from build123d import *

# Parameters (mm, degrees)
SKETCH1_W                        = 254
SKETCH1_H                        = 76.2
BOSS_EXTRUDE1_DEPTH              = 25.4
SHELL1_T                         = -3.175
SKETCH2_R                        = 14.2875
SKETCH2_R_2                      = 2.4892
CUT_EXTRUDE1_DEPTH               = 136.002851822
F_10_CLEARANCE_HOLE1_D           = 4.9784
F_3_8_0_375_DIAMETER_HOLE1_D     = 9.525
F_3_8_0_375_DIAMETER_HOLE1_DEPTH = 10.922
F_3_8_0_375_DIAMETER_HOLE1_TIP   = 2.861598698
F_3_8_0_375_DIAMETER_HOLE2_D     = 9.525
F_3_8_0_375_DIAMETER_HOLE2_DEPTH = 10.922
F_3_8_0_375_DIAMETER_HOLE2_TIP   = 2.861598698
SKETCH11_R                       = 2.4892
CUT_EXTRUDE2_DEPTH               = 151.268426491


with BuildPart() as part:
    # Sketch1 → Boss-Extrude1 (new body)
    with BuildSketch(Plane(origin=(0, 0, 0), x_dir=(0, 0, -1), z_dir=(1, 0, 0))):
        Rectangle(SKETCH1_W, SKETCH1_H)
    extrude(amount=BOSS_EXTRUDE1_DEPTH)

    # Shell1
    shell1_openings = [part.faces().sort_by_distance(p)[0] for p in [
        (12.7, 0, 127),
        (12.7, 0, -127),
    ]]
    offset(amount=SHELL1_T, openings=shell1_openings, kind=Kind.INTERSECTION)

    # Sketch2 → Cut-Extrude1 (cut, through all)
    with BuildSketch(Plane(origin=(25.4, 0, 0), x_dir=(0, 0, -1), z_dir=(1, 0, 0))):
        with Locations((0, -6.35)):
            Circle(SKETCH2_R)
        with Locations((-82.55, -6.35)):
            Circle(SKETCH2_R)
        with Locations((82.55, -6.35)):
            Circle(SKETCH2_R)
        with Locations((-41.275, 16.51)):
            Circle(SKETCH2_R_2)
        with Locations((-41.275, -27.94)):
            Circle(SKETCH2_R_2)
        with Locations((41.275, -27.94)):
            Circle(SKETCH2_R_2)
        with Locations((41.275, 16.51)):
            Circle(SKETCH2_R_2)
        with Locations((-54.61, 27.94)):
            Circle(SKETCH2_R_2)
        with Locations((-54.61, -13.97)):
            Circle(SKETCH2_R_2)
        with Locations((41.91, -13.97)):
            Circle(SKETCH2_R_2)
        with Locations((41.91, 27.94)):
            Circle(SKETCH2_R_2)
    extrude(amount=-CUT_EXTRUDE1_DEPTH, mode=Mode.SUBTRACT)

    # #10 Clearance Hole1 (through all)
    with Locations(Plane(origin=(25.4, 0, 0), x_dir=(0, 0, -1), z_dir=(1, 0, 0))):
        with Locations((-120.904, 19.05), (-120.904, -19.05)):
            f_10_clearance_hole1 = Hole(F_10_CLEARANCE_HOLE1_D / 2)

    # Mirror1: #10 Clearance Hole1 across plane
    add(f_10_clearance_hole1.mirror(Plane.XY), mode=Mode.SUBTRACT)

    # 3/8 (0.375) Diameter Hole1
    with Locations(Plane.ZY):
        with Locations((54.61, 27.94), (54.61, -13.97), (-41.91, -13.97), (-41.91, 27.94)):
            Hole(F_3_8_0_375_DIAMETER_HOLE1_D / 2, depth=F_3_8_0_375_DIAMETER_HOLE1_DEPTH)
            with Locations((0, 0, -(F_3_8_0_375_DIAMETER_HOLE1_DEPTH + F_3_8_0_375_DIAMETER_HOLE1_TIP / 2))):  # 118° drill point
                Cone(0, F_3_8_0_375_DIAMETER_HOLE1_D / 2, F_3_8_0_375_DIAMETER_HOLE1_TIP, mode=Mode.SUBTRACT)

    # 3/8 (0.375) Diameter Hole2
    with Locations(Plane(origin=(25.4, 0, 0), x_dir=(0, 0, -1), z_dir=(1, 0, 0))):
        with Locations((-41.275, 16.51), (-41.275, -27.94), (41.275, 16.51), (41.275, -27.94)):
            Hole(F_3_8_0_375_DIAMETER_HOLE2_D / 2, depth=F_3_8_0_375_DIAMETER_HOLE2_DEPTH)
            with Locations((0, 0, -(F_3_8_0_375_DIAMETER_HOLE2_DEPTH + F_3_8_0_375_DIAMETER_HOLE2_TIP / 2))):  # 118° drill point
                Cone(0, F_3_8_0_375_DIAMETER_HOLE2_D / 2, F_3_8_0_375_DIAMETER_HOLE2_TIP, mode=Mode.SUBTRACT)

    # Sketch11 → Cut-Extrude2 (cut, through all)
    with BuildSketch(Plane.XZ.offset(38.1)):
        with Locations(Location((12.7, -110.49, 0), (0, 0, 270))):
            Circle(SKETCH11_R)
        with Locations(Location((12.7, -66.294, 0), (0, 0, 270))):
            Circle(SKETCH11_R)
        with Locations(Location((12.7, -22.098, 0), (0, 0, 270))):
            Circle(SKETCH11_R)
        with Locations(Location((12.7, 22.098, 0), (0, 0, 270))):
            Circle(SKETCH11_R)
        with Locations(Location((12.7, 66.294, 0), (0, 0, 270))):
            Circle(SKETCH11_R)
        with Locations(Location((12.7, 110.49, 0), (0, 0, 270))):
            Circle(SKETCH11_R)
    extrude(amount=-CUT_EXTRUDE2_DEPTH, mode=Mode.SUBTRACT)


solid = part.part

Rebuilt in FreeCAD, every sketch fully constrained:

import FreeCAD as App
import Part
import Sketcher

V = App.Vector
Q = App.Units.Quantity


def faces_at(feature, points):
    """Names of the faces that lie closest to the given points."""
    faces = feature.Shape.Faces
    near = lambda p: min(range(len(faces)), key=lambda i: faces[i].distToShape(Part.Vertex(*p))[0])
    return sorted({f"Face{near(p) + 1}" for p in points})


def add_polygon(sketch, points):
    """Adds a closed chain of lines whose ends are joined by coincident constraints."""
    first, n = sketch.GeometryCount, len(points)
    for a, b in zip(points, points[1:] + points[:1]):
        sketch.addGeometry(Part.LineSegment(App.Vector(*a, 0), App.Vector(*b, 0)), False)
    for i in range(n):
        sketch.addConstraint(Sketcher.Constraint("Coincident", first + i, 2, first + (i + 1) % n, 1))

doc = App.newDocument("Part")
body = doc.addObject("PartDesign::Body", "Body")

sketch1 = body.newObject("Sketcher::SketchObject", "Sketch")
sketch1.AttachmentSupport = (doc.getObject("YZ_Plane"), [""])
sketch1.MapMode = "FlatFace"
add_polygon(sketch1, [(38, 127), (-38, 127), (-38, -127), (38, -127)])
sketch1.addConstraint(Sketcher.Constraint("Horizontal", 0))
sketch1.addConstraint(Sketcher.Constraint("Vertical", 1))
sketch1.addConstraint(Sketcher.Constraint("Horizontal", 2))
sketch1.addConstraint(Sketcher.Constraint("Vertical", 3))
sketch1.addConstraint(Sketcher.Constraint("Symmetric", 0, 2, 2, 2, -1, 1))
sketch1.addConstraint(Sketcher.Constraint("DistanceX", 0, 2, 0, 1, Q("3 in")))
sketch1.addConstraint(Sketcher.Constraint("DistanceY", 1, 2, 1, 1, Q("10 in")))
pad1 = body.newObject("PartDesign::Pad", "Pad")
pad1.Profile = sketch1
pad1.Length = Q("1 in")
doc.recompute()

thickness = body.newObject("PartDesign::Thickness", "Thickness")
thickness.Base = (pad1, faces_at(pad1, [(12.7, 0, 127), (12.7, 0, -127)]))
thickness.Value = Q("0.125 in")
thickness.Reversed = True
thickness.Join = "Intersection"

sketch2 = body.newObject("Sketcher::SketchObject", "Sketch001")
sketch2.AttachmentSupport = (doc.getObject("YZ_Plane"), [""])
sketch2.MapMode = "FlatFace"
sketch2.AttachmentOffset = App.Placement(V(0, 0, 1 * 25.4), App.Rotation())
sketch2.addGeometry(Part.Circle(V(-6.3, 0, 0), V(0, 0, 1), 14.3), False)
sketch2.addGeometry(Part.Circle(V(-6.3, 82.5, 0), V(0, 0, 1), 14.3), False)
sketch2.addGeometry(Part.Circle(V(-6.3, -82.5, 0), V(0, 0, 1), 14.3), False)
sketch2.addGeometry(Part.Circle(V(16.5, 41.3, 0), V(0, 0, 1), 2.5), False)
sketch2.addGeometry(Part.Circle(V(-27.9, 41.3, 0), V(0, 0, 1), 2.5), False)
sketch2.addGeometry(Part.Circle(V(-27.9, -41.3, 0), V(0, 0, 1), 2.5), False)
sketch2.addGeometry(Part.Circle(V(16.5, -41.3, 0), V(0, 0, 1), 2.5), False)
sketch2.addGeometry(Part.Circle(V(27.9, 54.6, 0), V(0, 0, 1), 2.5), False)
sketch2.addGeometry(Part.Circle(V(-14, 54.6, 0), V(0, 0, 1), 2.5), False)
sketch2.addGeometry(Part.Circle(V(-14, -41.9, 0), V(0, 0, 1), 2.5), False)
sketch2.addGeometry(Part.Circle(V(27.9, -41.9, 0), V(0, 0, 1), 2.5), False)
sketch2.addConstraint(Sketcher.Constraint("Equal", 0, 1))
sketch2.addConstraint(Sketcher.Constraint("Equal", 1, 2))
sketch2.addConstraint(Sketcher.Constraint("Equal", 3, 4))
sketch2.addConstraint(Sketcher.Constraint("Equal", 4, 5))
sketch2.addConstraint(Sketcher.Constraint("Equal", 5, 6))
sketch2.addConstraint(Sketcher.Constraint("Equal", 6, 7))
sketch2.addConstraint(Sketcher.Constraint("Equal", 7, 8))
sketch2.addConstraint(Sketcher.Constraint("Equal", 8, 9))
sketch2.addConstraint(Sketcher.Constraint("Equal", 9, 10))
sketch2.addConstraint(Sketcher.Constraint("Symmetric", 1, 3, 2, 3, -1))
sketch2.addConstraint(Sketcher.Constraint("Symmetric", 4, 3, 5, 3, -1))
sketch2.addConstraint(Sketcher.Constraint("Symmetric", 3, 3, 6, 3, -1))
sketch2.addConstraint(Sketcher.Constraint("PointOnObject", 0, 3, -1))
sketch2.addConstraint(Sketcher.Constraint("Horizontal", 3, 3, 4, 3))
sketch2.addConstraint(Sketcher.Constraint("Horizontal", 7, 3, 8, 3))
sketch2.addConstraint(Sketcher.Constraint("Horizontal", 9, 3, 10, 3))
sketch2.addConstraint(Sketcher.Constraint("Vertical", 0, 3, 1, 3))
sketch2.addConstraint(Sketcher.Constraint("Vertical", 8, 3, 9, 3))
sketch2.addConstraint(Sketcher.Constraint("Vertical", 7, 3, 10, 3))
sketch2.addConstraint(Sketcher.Constraint("Diameter", 0, Q("1.125 in")))
sketch2.addConstraint(Sketcher.Constraint("Diameter", 3, Q("0.196 in")))
sketch2.addConstraint(Sketcher.Constraint("DistanceX", 4, 3, -1, 1, Q("1.1 in")))
sketch2.addConstraint(Sketcher.Constraint("DistanceX", -1, 1, 7, 3, Q("1.1 in")))
sketch2.addConstraint(Sketcher.Constraint("DistanceY", 2, 3, 1, 3, Q("6.5 in")))
sketch2.addConstraint(Sketcher.Constraint("DistanceX", 0, 3, 3, 3, Q("0.9 in")))
sketch2.addConstraint(Sketcher.Constraint("DistanceY", 7, 3, 1, 3, Q("1.1 in")))
sketch2.addConstraint(Sketcher.Constraint("DistanceX", 8, 3, 1, 3, Q("0.3 in")))
sketch2.addConstraint(Sketcher.Constraint("DistanceY", 2, 3, 9, 3, Q("1.6 in")))
sketch2.addConstraint(Sketcher.Constraint("DistanceX", 0, 3, -1, 1, Q("0.25 in")))
sketch2.addConstraint(Sketcher.Constraint("DistanceY", 5, 3, 4, 3, Q("3.25 in")))
pocket1 = body.newObject("PartDesign::Pocket", "Pocket")
pocket1.Profile = sketch2
pocket1.Type = "ThroughAll"

sketch3 = body.newObject("Sketcher::SketchObject", "Sketch002")
sketch3.AttachmentSupport = (doc.getObject("YZ_Plane"), [""])
sketch3.MapMode = "FlatFace"
sketch3.AttachmentOffset = App.Placement(V(0, 0, 1 * 25.4), App.Rotation())
sketch3.addGeometry(Part.Circle(V(19.1, 120.9, 0), V(0, 0, 1), 2.5), False)
sketch3.addGeometry(Part.Circle(V(-19.1, 120.9, 0), V(0, 0, 1), 2.5), False)
sketch3.addConstraint(Sketcher.Constraint("Equal", 0, 1))
sketch3.addConstraint(Sketcher.Constraint("Symmetric", 0, 3, 1, 3, -2))
sketch3.addConstraint(Sketcher.Constraint("Diameter", 0, Q("0.196 in")))
sketch3.addConstraint(Sketcher.Constraint("DistanceX", 1, 3, 0, 3, Q("1.5 in")))
sketch3.addConstraint(Sketcher.Constraint("DistanceY", -1, 1, 0, 3, Q("4.76 in")))
doc.recompute()
hole = body.newObject("PartDesign::Hole", "Hole")
hole.Profile = sketch3
hole.ThreadType = "None"
hole.Diameter = Q("0.196 in")
hole.DepthType = "ThroughAll"
doc.recompute()

mirrored = body.newObject("PartDesign::Mirrored", "Mirrored")
mirrored.Originals = [hole]
mirrored.MirrorPlane = (doc.getObject("XY_Plane"), [""])
body.Tip = mirrored

sketch4 = body.newObject("Sketcher::SketchObject", "Sketch003")
sketch4.AttachmentSupport = (doc.getObject("YZ_Plane"), [""])
sketch4.MapMode = "FlatFace"
sketch4.addGeometry(Part.Circle(V(27.9, 54.6, 0), V(0, 0, 1), 4.8), False)
sketch4.addGeometry(Part.Circle(V(-14, 54.6, 0), V(0, 0, 1), 4.8), False)
sketch4.addGeometry(Part.Circle(V(-14, -41.9, 0), V(0, 0, 1), 4.8), False)
sketch4.addGeometry(Part.Circle(V(27.9, -41.9, 0), V(0, 0, 1), 4.8), False)
sketch4.addConstraint(Sketcher.Constraint("Equal", 0, 1))
sketch4.addConstraint(Sketcher.Constraint("Equal", 1, 2))
sketch4.addConstraint(Sketcher.Constraint("Equal", 2, 3))
sketch4.addConstraint(Sketcher.Constraint("Horizontal", 0, 3, 1, 3))
sketch4.addConstraint(Sketcher.Constraint("Horizontal", 2, 3, 3, 3))
sketch4.addConstraint(Sketcher.Constraint("Vertical", 1, 3, 2, 3))
sketch4.addConstraint(Sketcher.Constraint("Vertical", 0, 3, 3, 3))
sketch4.addConstraint(Sketcher.Constraint("Diameter", 0, Q("0.375 in")))
sketch4.addConstraint(Sketcher.Constraint("DistanceX", -1, 1, 0, 3, Q("1.1 in")))
sketch4.addConstraint(Sketcher.Constraint("DistanceY", 2, 3, 1, 3, Q("3.8 in")))
sketch4.addConstraint(Sketcher.Constraint("DistanceY", -1, 1, 0, 3, Q("2.15 in")))
sketch4.addConstraint(Sketcher.Constraint("DistanceX", 1, 3, -1, 1, Q("0.55 in")))
doc.recompute()
hole2 = body.newObject("PartDesign::Hole", "Hole001")
hole2.Profile = sketch4
hole2.ThreadType = "None"
hole2.Diameter = Q("0.375 in")
hole2.DepthType = "Dimension"
hole2.Depth = Q("0.43 in")
hole2.DrillPoint = "Angled"
hole2.DrillPointAngle = 118
hole2.Reversed = True

sketch5 = body.newObject("Sketcher::SketchObject", "Sketch004")
sketch5.AttachmentSupport = (doc.getObject("YZ_Plane"), [""])
sketch5.MapMode = "FlatFace"
sketch5.AttachmentOffset = App.Placement(V(0, 0, 1 * 25.4), App.Rotation())
sketch5.addGeometry(Part.Circle(V(16.5, 41.3, 0), V(0, 0, 1), 4.8), False)
sketch5.addGeometry(Part.Circle(V(-27.9, 41.3, 0), V(0, 0, 1), 4.8), False)
sketch5.addGeometry(Part.Circle(V(16.5, -41.3, 0), V(0, 0, 1), 4.8), False)
sketch5.addGeometry(Part.Circle(V(-27.9, -41.3, 0), V(0, 0, 1), 4.8), False)
sketch5.addConstraint(Sketcher.Constraint("Equal", 0, 1))
sketch5.addConstraint(Sketcher.Constraint("Equal", 1, 2))
sketch5.addConstraint(Sketcher.Constraint("Equal", 2, 3))
sketch5.addConstraint(Sketcher.Constraint("Symmetric", 0, 3, 2, 3, -1))
sketch5.addConstraint(Sketcher.Constraint("Symmetric", 1, 3, 3, 3, -1))
sketch5.addConstraint(Sketcher.Constraint("Horizontal", 0, 3, 1, 3))
sketch5.addConstraint(Sketcher.Constraint("Diameter", 0, Q("0.375 in")))
sketch5.addConstraint(Sketcher.Constraint("DistanceX", 1, 3, -1, 1, Q("1.1 in")))
sketch5.addConstraint(Sketcher.Constraint("DistanceX", -1, 1, 0, 3, Q("0.65 in")))
sketch5.addConstraint(Sketcher.Constraint("DistanceY", 2, 3, 0, 3, Q("3.25 in")))
doc.recompute()
hole3 = body.newObject("PartDesign::Hole", "Hole002")
hole3.Profile = sketch5
hole3.ThreadType = "None"
hole3.Diameter = Q("0.375 in")
hole3.DepthType = "Dimension"
hole3.Depth = Q("0.43 in")
hole3.DrillPoint = "Angled"
hole3.DrillPointAngle = 118

sketch6 = body.newObject("Sketcher::SketchObject", "Sketch005")
sketch6.AttachmentSupport = (doc.getObject("XZ_Plane"), [""])
sketch6.MapMode = "FlatFace"
sketch6.AttachmentOffset = App.Placement(V(0, 0, 1.5 * 25.4), App.Rotation())
sketch6.addGeometry(Part.Circle(V(12.7, -110.5, 0), V(0, 0, 1), 2.5), False)
sketch6.addGeometry(Part.Circle(V(12.7, -66.3, 0), V(0, 0, 1), 2.5), False)
sketch6.addGeometry(Part.Circle(V(12.7, -22.1, 0), V(0, 0, 1), 2.5), False)
sketch6.addGeometry(Part.Circle(V(12.7, 22.1, 0), V(0, 0, 1), 2.5), False)
sketch6.addGeometry(Part.Circle(V(12.7, 66.3, 0), V(0, 0, 1), 2.5), False)
sketch6.addGeometry(Part.Circle(V(12.7, 110.5, 0), V(0, 0, 1), 2.5), False)
sketch6.addConstraint(Sketcher.Constraint("Equal", 0, 1))
sketch6.addConstraint(Sketcher.Constraint("Equal", 1, 2))
sketch6.addConstraint(Sketcher.Constraint("Equal", 2, 3))
sketch6.addConstraint(Sketcher.Constraint("Equal", 3, 4))
sketch6.addConstraint(Sketcher.Constraint("Equal", 4, 5))
sketch6.addConstraint(Sketcher.Constraint("Symmetric", 2, 3, 3, 3, -1))
sketch6.addConstraint(Sketcher.Constraint("Symmetric", 1, 3, 4, 3, -1))
sketch6.addConstraint(Sketcher.Constraint("Symmetric", 0, 3, 5, 3, -1))
sketch6.addConstraint(Sketcher.Constraint("Vertical", 0, 3, 1, 3))
sketch6.addConstraint(Sketcher.Constraint("Vertical", 1, 3, 2, 3))
sketch6.addConstraint(Sketcher.Constraint("Diameter", 0, Q("0.196 in")))
sketch6.addConstraint(Sketcher.Constraint("DistanceX", -1, 1, 0, 3, Q("0.5 in")))
sketch6.addConstraint(Sketcher.Constraint("DistanceY", 0, 3, 5, 3, Q("8.7 in")))
sketch6.addConstraint(Sketcher.Constraint("DistanceY", 1, 3, -1, 1, Q("2.61 in")))
sketch6.addConstraint(Sketcher.Constraint("DistanceY", 2, 3, -1, 1, Q("0.87 in")))
pocket2 = body.newObject("PartDesign::Pocket", "Pocket001")
pocket2.Profile = sketch6
pocket2.Type = "ThroughAll"

doc.recompute()
